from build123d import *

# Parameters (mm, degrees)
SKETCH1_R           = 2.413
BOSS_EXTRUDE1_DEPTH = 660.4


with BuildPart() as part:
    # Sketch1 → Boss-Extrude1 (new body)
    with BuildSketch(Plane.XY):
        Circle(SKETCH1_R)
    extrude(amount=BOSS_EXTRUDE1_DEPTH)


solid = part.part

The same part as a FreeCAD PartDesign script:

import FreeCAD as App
import Part
import Sketcher
Q = App.Units.Quantity

doc = App.newDocument("Part")
body = doc.addObject("PartDesign::Body", "Body")

# Sketch on XY plane
sketch1 = body.newObject("Sketcher::SketchObject", "Sketch")
sketch1.AttachmentSupport = (doc.getObject("XY_Plane"), [""])
sketch1.MapMode = "FlatFace"
sketch1.addGeometry(Part.Circle(App.Vector(0, 0, 0), App.Vector(0, 0, 1), 2.413), False)
sketch1.addConstraint([
    Sketcher.Constraint("Coincident", 0, 3, -1, 1),
    Sketcher.Constraint("Diameter", 0, Q("0.19 in")),
])
pad1 = body.newObject("PartDesign::Pad", "Pad")
pad1.Profile = sketch1
pad1.Length = Q("26 in")

doc.recompute()
